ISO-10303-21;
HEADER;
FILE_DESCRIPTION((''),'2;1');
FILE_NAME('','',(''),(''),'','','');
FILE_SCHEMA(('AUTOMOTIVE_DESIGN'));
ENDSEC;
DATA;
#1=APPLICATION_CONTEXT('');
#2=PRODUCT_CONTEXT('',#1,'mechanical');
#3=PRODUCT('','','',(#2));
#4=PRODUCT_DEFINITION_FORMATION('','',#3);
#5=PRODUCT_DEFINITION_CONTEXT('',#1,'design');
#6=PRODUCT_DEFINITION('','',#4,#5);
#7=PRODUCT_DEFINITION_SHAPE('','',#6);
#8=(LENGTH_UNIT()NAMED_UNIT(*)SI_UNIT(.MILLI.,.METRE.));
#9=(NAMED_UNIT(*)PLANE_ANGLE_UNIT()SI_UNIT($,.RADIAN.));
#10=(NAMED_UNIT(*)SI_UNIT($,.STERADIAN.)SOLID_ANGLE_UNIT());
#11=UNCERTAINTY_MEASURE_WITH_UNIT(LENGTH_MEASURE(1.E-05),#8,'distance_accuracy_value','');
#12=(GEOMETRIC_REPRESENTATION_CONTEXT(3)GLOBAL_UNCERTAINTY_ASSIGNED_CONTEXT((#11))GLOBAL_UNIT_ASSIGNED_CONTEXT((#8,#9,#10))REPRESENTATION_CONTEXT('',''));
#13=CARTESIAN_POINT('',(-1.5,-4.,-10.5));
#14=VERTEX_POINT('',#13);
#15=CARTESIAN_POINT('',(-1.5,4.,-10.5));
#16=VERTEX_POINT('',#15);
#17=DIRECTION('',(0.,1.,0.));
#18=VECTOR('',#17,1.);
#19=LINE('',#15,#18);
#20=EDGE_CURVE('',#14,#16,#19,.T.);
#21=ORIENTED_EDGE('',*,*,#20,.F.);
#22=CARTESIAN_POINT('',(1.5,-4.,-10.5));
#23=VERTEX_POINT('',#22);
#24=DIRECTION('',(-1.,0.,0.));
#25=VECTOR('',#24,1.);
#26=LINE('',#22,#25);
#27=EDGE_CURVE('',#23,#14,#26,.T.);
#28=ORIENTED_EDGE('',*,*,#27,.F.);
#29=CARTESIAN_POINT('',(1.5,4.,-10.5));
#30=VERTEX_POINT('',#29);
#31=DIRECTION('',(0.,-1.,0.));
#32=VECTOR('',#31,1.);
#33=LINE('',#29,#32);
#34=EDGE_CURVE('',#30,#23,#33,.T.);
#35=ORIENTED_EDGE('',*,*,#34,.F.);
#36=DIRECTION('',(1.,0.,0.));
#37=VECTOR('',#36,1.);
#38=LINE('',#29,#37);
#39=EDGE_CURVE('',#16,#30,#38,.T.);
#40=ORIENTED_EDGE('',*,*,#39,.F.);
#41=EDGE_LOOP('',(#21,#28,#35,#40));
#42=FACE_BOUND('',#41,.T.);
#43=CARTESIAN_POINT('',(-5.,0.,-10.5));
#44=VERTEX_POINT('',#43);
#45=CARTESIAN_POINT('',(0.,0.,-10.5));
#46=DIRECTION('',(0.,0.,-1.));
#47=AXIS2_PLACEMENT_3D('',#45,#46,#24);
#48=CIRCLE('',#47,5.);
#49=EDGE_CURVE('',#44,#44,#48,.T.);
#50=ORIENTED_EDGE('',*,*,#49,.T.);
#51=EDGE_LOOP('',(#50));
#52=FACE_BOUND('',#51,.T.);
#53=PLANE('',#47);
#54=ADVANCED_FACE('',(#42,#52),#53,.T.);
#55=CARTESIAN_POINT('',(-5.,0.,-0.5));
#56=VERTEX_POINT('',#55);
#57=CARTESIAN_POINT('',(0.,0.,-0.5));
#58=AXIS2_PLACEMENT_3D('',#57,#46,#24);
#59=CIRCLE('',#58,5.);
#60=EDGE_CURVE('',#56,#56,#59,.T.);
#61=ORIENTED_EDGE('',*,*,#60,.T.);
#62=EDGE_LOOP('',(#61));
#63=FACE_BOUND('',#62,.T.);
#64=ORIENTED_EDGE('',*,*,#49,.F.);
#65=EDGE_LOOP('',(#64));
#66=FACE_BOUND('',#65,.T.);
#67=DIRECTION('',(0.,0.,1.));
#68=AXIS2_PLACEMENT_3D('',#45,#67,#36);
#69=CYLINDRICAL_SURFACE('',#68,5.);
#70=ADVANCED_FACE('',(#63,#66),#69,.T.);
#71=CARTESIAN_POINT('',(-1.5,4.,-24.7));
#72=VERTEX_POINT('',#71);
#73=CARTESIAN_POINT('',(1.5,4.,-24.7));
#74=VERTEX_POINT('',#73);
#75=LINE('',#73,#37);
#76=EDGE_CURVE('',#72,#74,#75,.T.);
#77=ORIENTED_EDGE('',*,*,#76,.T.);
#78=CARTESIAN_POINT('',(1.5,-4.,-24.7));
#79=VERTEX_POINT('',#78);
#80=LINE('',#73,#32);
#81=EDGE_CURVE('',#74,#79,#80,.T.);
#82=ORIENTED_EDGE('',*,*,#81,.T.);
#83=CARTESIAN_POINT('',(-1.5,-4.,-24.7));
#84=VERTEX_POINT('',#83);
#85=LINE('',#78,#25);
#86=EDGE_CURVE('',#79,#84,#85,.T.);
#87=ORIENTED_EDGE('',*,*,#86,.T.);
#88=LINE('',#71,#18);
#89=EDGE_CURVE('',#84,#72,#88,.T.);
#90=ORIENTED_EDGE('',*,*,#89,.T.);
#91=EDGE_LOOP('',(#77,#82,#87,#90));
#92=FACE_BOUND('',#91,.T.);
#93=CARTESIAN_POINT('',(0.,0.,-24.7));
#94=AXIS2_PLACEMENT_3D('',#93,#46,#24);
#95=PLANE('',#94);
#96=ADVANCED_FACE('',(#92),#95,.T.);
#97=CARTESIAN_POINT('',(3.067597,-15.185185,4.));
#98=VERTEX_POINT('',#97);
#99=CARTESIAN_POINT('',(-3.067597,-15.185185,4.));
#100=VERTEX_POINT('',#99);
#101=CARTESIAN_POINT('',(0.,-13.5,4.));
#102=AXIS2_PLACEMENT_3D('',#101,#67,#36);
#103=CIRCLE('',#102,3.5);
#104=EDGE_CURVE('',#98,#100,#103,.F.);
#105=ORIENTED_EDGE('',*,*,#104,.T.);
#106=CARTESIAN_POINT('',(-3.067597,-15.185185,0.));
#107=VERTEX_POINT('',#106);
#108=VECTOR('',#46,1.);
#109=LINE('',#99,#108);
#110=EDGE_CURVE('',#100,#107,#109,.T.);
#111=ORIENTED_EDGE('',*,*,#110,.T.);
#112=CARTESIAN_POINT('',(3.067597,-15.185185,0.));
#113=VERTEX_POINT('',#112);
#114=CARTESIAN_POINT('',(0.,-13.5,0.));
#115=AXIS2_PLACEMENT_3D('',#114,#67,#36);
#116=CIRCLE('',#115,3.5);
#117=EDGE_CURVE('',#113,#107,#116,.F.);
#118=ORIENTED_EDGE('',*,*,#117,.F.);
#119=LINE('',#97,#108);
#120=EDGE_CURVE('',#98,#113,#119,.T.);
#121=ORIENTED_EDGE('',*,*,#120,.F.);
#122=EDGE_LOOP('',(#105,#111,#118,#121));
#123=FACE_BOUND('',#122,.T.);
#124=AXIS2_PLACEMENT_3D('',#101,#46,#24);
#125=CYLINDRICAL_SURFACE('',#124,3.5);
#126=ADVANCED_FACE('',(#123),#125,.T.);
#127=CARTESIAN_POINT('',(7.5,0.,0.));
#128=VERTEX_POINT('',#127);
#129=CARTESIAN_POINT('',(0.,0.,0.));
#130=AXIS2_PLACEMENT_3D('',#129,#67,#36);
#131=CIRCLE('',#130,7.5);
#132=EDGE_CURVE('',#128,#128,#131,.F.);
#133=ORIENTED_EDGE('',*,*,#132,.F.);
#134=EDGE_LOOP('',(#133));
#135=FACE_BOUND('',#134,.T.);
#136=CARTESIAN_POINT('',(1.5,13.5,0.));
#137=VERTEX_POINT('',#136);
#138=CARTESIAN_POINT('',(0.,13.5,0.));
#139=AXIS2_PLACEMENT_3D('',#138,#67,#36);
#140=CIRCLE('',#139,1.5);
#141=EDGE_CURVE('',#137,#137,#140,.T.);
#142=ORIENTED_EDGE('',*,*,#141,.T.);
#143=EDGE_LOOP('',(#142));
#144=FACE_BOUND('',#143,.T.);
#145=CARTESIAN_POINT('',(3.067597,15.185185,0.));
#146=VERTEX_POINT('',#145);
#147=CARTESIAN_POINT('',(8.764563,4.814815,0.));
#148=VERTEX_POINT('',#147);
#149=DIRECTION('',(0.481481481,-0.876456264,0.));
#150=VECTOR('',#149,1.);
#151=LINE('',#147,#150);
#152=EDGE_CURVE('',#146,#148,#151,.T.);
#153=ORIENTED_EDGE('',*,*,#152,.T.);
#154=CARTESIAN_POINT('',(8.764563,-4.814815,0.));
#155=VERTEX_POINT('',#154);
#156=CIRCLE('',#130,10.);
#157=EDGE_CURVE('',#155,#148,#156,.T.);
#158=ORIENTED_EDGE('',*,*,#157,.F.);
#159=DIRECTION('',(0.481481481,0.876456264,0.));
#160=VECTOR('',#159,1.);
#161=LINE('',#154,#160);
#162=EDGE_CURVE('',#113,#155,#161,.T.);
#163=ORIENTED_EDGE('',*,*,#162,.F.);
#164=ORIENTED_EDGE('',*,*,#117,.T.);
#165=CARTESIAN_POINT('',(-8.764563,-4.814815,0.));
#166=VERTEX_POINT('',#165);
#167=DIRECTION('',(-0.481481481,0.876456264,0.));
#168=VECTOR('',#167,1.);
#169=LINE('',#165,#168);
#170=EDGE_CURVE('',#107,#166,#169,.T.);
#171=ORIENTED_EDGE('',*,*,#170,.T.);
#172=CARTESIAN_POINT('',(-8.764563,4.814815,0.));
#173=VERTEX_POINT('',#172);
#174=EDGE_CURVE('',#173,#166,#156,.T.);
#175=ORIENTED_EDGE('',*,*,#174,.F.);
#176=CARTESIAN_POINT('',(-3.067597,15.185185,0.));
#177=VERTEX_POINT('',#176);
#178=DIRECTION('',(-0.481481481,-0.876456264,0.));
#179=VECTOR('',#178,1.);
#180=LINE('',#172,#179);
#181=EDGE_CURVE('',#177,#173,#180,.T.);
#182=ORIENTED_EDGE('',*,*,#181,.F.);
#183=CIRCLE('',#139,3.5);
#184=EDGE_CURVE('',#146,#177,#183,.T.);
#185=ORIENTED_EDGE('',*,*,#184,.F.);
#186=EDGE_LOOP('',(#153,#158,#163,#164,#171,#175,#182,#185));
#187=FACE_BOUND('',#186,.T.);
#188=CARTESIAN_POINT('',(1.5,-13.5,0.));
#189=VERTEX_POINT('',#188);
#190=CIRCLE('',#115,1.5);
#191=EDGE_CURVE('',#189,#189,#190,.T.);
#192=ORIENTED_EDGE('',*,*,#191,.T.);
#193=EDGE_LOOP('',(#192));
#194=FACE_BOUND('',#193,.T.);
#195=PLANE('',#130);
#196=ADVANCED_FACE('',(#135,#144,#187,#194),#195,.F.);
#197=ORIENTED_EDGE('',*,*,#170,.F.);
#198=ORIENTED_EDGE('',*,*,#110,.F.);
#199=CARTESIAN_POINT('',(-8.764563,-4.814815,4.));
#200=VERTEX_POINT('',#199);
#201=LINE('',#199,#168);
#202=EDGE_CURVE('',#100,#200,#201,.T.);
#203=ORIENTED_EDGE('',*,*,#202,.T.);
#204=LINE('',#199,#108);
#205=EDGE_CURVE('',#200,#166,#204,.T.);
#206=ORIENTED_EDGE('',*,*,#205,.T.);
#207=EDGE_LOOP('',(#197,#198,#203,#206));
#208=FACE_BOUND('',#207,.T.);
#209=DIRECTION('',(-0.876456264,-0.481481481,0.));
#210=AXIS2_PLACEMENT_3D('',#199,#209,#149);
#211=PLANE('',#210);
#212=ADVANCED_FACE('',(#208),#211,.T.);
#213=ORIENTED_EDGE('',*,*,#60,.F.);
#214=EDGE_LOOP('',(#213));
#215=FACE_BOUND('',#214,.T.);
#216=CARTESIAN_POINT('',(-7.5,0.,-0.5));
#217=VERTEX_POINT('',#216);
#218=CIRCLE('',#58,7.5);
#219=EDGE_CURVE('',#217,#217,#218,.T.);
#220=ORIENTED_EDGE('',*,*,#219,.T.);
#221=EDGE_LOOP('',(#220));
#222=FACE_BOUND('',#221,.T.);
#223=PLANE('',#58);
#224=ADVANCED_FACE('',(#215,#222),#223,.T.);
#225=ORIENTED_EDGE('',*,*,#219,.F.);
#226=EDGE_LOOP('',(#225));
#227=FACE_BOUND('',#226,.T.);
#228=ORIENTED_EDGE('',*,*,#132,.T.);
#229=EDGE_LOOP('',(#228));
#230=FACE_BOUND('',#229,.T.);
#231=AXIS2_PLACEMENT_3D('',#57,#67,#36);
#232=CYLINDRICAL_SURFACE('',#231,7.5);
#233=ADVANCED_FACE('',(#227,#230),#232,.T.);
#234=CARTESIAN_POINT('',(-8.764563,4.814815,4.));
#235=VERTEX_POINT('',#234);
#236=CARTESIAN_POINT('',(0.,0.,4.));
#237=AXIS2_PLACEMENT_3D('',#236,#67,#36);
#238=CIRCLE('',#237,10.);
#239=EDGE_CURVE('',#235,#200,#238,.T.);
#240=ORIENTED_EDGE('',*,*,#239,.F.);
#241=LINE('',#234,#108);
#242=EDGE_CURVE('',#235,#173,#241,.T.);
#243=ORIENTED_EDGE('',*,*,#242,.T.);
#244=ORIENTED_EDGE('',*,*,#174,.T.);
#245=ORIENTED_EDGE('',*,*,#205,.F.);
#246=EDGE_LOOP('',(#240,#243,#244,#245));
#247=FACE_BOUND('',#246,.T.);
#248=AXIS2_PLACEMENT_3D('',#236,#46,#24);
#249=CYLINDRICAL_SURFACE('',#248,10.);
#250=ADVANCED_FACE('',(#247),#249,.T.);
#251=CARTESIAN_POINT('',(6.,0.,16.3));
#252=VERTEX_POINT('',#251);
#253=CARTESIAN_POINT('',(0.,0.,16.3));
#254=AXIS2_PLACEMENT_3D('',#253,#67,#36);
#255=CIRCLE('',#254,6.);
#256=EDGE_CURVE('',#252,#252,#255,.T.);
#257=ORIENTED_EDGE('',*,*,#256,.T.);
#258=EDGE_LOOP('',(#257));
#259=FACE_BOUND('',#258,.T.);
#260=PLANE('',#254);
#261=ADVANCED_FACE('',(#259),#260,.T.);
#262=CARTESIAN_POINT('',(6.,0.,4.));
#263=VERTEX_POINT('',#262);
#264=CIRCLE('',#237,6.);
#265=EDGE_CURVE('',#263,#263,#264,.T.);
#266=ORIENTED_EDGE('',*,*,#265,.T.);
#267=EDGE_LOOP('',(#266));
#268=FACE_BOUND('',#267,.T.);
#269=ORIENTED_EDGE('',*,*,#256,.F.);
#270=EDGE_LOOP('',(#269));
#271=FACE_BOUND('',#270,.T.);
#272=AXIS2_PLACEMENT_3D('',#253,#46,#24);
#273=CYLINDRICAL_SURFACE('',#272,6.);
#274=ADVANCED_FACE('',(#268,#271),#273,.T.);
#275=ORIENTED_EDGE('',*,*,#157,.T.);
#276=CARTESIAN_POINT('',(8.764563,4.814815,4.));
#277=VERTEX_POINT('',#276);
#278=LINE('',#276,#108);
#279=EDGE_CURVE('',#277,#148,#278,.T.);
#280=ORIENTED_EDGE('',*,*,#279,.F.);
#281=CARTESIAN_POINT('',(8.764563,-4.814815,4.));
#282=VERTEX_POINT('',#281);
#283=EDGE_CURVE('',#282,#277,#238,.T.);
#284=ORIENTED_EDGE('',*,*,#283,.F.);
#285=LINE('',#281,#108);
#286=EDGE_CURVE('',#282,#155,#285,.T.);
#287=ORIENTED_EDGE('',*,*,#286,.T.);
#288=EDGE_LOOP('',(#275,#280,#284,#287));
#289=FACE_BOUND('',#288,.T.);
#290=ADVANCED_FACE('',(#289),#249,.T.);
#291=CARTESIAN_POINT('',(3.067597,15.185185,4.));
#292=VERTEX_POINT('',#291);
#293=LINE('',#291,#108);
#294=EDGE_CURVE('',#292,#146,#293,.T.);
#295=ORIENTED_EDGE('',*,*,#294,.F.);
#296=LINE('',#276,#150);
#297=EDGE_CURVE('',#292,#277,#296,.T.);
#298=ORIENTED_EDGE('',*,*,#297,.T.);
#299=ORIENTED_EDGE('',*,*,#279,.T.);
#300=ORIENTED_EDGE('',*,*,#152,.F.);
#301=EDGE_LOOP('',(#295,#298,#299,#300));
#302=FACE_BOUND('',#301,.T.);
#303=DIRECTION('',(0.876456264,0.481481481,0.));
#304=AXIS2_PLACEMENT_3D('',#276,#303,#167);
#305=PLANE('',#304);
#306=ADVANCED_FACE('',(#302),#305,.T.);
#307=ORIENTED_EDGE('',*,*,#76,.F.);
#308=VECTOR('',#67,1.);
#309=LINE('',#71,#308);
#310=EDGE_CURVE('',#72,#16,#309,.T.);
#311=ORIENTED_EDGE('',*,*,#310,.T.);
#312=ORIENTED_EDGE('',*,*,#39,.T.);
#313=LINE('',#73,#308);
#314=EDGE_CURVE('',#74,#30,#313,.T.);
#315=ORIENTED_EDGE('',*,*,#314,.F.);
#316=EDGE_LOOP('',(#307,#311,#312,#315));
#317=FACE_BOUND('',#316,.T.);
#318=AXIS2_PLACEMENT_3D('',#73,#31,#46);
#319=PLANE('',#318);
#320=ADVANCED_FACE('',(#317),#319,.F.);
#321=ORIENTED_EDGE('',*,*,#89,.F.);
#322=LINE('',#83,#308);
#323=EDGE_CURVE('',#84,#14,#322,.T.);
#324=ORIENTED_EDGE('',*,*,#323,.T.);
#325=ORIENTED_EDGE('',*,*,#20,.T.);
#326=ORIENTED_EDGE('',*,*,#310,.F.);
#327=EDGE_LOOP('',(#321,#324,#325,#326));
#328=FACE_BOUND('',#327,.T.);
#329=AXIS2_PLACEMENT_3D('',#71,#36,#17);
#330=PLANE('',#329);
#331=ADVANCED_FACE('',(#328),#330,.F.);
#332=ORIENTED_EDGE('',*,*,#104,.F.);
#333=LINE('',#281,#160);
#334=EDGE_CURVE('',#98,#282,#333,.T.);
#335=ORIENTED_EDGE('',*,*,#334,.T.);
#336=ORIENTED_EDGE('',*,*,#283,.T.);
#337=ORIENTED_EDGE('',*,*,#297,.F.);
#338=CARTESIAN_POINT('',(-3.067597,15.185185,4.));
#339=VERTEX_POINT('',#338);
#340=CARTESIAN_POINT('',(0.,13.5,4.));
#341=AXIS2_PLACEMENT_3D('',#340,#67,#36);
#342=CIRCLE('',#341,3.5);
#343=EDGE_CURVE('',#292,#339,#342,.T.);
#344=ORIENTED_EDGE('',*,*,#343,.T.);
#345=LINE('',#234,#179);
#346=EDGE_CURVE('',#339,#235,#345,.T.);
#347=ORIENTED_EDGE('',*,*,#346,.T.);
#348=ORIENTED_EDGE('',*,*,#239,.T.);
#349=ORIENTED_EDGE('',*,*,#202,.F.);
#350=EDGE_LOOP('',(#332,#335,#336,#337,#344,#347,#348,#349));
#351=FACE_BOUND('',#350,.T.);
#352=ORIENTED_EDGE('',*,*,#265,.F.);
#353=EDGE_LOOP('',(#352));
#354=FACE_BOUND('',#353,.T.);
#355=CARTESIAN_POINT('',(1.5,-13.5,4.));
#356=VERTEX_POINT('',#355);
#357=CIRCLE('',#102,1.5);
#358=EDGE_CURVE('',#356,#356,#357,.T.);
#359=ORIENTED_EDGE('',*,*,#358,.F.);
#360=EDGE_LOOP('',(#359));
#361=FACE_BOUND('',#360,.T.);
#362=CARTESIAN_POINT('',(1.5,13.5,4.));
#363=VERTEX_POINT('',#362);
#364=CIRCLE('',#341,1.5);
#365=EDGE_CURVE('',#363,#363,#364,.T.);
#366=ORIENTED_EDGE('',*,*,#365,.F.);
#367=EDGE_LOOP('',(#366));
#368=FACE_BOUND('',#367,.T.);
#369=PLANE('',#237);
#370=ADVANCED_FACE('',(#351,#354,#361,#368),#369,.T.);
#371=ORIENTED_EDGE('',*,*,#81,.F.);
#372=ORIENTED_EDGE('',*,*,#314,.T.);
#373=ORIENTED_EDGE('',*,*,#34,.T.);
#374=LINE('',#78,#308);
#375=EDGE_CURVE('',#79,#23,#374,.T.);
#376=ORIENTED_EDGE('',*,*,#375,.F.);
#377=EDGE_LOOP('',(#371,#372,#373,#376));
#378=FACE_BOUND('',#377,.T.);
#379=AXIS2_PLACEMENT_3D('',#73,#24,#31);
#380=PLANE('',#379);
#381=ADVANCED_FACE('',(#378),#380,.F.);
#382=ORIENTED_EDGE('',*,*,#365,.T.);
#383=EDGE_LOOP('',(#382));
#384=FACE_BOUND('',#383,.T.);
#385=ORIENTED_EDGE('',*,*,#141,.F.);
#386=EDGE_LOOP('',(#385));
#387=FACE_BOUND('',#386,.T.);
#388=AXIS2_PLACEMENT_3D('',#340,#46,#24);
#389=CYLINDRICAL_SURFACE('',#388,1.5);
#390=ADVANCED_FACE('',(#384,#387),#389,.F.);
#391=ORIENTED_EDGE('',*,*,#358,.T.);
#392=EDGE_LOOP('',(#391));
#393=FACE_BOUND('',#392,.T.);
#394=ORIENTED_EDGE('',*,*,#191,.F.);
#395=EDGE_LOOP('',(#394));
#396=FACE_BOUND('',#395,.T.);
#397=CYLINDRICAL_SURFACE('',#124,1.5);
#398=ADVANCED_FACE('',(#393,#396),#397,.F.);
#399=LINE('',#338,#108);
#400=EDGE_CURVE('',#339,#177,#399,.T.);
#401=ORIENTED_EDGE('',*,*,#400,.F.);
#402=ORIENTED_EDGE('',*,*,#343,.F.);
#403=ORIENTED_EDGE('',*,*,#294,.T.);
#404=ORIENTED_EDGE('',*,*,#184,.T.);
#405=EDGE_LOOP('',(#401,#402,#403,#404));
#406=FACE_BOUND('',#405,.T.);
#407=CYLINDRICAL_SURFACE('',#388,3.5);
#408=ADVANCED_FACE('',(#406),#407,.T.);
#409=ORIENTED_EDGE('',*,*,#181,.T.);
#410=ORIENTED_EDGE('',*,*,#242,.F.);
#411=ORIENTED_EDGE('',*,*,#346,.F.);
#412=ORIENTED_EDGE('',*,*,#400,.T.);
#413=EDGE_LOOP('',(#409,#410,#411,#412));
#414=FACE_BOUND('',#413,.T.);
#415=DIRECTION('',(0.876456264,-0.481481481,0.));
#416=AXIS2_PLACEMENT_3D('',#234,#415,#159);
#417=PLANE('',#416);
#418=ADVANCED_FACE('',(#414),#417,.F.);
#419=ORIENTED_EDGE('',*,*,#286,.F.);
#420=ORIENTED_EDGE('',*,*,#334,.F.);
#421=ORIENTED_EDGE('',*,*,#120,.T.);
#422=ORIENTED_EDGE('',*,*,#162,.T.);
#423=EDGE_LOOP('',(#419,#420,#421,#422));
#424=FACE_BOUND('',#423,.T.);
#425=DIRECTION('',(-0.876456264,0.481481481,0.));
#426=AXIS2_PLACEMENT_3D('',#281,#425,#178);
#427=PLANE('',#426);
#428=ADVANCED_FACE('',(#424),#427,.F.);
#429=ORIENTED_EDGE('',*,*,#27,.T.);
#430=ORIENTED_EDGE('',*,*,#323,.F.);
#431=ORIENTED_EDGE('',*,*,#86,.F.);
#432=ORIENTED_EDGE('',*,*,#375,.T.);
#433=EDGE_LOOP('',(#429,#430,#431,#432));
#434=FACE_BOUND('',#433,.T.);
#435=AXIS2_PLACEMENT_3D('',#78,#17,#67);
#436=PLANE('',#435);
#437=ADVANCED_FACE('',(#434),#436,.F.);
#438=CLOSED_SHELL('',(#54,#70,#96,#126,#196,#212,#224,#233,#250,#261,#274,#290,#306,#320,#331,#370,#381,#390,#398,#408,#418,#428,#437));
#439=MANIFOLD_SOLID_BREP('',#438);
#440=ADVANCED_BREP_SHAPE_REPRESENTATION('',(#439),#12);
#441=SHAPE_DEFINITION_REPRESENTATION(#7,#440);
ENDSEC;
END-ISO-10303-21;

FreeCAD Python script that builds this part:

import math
import FreeCAD as App
import Part
import Sketcher
from FreeCAD import Vector

doc = App.newDocument("Part")
body = doc.addObject("PartDesign::Body", "Body")

# Sketch on XY plane
sketch1 = doc.addObject("Sketcher::SketchObject", "Sketch")
body.addObject(sketch1)
sketch1.AttachmentSupport = (doc.XY_Plane, [""])
sketch1.MapMode = "FlatFace"
sketch1.addGeometry(Part.ArcOfCircle(Part.Circle(Vector(0, -13.5, 0), Vector(0, 0, 1), 3.5), math.radians(-151), math.radians(-29)), False)
sketch1.addGeometry(Part.LineSegment(Vector(3.1, -15.2, 0), Vector(8.8, -4.8, 0)), False)
sketch1.addGeometry(Part.ArcOfCircle(Part.Circle(Vector(0, 0, 0), Vector(0, 0, 1), 10), math.radians(-29), math.radians(29)), False)
sketch1.addGeometry(Part.LineSegment(Vector(8.8, 4.8, 0), Vector(3.1, 15.2, 0)), False)
sketch1.addGeometry(Part.ArcOfCircle(Part.Circle(Vector(0, 13.5, 0), Vector(0, 0, 1), 3.5), math.radians(29), math.radians(151)), False)
sketch1.addGeometry(Part.LineSegment(Vector(-3.1, 15.2, 0), Vector(-8.8, 4.8, 0)), False)
sketch1.addGeometry(Part.ArcOfCircle(Part.Circle(Vector(0, 0, 0), Vector(0, 0, 1), 10), math.radians(151), math.radians(209)), False)
sketch1.addGeometry(Part.LineSegment(Vector(-8.8, -4.8, 0), Vector(-3.1, -15.2, 0)), False)
sketch1.addGeometry(Part.Circle(Vector(0, -13.5, 0), Vector(0, 0, 1), 1.5), False)
sketch1.addGeometry(Part.Circle(Vector(0, 13.5, 0), Vector(0, 0, 1), 1.5), False)
sketch1.addConstraint(Sketcher.Constraint("Tangent", 0, 2, 1, 1))
sketch1.addConstraint(Sketcher.Constraint("Tangent", 1, 2, 2, 1))
sketch1.addConstraint(Sketcher.Constraint("Tangent", 2, 2, 3, 1))
sketch1.addConstraint(Sketcher.Constraint("Tangent", 3, 2, 4, 1))
sketch1.addConstraint(Sketcher.Constraint("Tangent", 4, 2, 5, 1))
sketch1.addConstraint(Sketcher.Constraint("Tangent", 5, 2, 6, 1))
sketch1.addConstraint(Sketcher.Constraint("Tangent", 6, 2, 7, 1))
sketch1.addConstraint(Sketcher.Constraint("Tangent", 7, 2, 0, 1))
sketch1.addConstraint(Sketcher.Constraint("Coincident", 2, 3, -1, 1))
sketch1.addConstraint(Sketcher.Constraint("Coincident", 6, 3, -1, 1))
sketch1.addConstraint(Sketcher.Constraint("Coincident", 8, 3, 0, 3))
sketch1.addConstraint(Sketcher.Constraint("Coincident", 9, 3, 4, 3))
sketch1.addConstraint(Sketcher.Constraint("Equal", 0, 4))
sketch1.addConstraint(Sketcher.Constraint("Equal", 2, 6))
sketch1.addConstraint(Sketcher.Constraint("Equal", 8, 9))
sketch1.addConstraint(Sketcher.Constraint("Symmetric", 0, 3, 4, 3, -1, 1))
sketch1.addConstraint(Sketcher.Constraint("PointOnObject", 0, 3, -2))
sketch1.addConstraint(Sketcher.Constraint("Diameter", 8, 3.0))
sketch1.addConstraint(Sketcher.Constraint("Radius", 2, 10.0))
sketch1.addConstraint(Sketcher.Constraint("Radius", 0, 3.5))
sketch1.addConstraint(Sketcher.Constraint("DistanceY", 0, 3, 4, 3, 27.0))
pad1 = doc.addObject("PartDesign::Pad", "Pad")
body.addObject(pad1)
pad1.Profile = sketch1
pad1.Length = 4

# Sketch on XY plane
sketch2 = doc.addObject("Sketcher::SketchObject", "Sketch001")
body.addObject(sketch2)
sketch2.AttachmentSupport = (doc.XY_Plane, [""])
sketch2.MapMode = "FlatFace"
sketch2.AttachmentOffset = App.Placement(Vector(0, 0, 4), App.Rotation())
sketch2.addGeometry(Part.Circle(Vector(0, 0, 0), Vector(0, 0, 1), 6), False)
sketch2.addConstraint(Sketcher.Constraint("Coincident", 0, 3, -1, 1))
sketch2.addConstraint(Sketcher.Constraint("Diameter", 0, 12.0))
pad2 = doc.addObject("PartDesign::Pad", "Pad001")
body.addObject(pad2)
pad2.Profile = sketch2
pad2.Length = 12.3

# Sketch on XY plane
sketch3 = doc.addObject("Sketcher::SketchObject", "Sketch002")
body.addObject(sketch3)
sketch3.AttachmentSupport = (doc.XY_Plane, [""])
sketch3.MapMode = "FlatFace"
sketch3.addGeometry(Part.Circle(Vector(0, 0, 0), Vector(0, 0, 1), 8), False)
sketch3.addConstraint(Sketcher.Constraint("Coincident", 0, 3, -1, 1))
sketch3.addConstraint(Sketcher.Constraint("Diameter", 0, 15.0))
pad3 = doc.addObject("PartDesign::Pad", "Pad002")
body.addObject(pad3)
pad3.Profile = sketch3
pad3.Length = 0.5
pad3.Reversed = True

# Sketch on XY plane
sketch4 = doc.addObject("Sketcher::SketchObject", "Sketch003")
body.addObject(sketch4)
sketch4.AttachmentSupport = (doc.XY_Plane, [""])
sketch4.MapMode = "FlatFace"
sketch4.AttachmentOffset = App.Placement(Vector(0, 0, -0.5), App.Rotation())
sketch4.addGeometry(Part.LineSegment(Vector(1.5, 4, 0), Vector(1.5, -4, 0)), False)
sketch4.addGeometry(Part.LineSegment(Vector(1.5, -4, 0), Vector(-1.5, -4, 0)), False)
sketch4.addGeometry(Part.LineSegment(Vector(-1.5, -4, 0), Vector(-1.5, 4, 0)), False)
sketch4.addGeometry(Part.LineSegment(Vector(-1.5, 4, 0), Vector(1.5, 4, 0)), False)
sketch4.addConstraint(Sketcher.Constraint("Coincident", 0, 2, 1, 1))
sketch4.addConstraint(Sketcher.Constraint("Coincident", 1, 2, 2, 1))
sketch4.addConstraint(Sketcher.Constraint("Coincident", 2, 2, 3, 1))
sketch4.addConstraint(Sketcher.Constraint("Coincident", 3, 2, 0, 1))
sketch4.addConstraint(Sketcher.Constraint("Vertical", 0))
sketch4.addConstraint(Sketcher.Constraint("Horizontal", 1))
sketch4.addConstraint(Sketcher.Constraint("Vertical", 2))
sketch4.addConstraint(Sketcher.Constraint("Horizontal", 3))
sketch4.addConstraint(Sketcher.Constraint("Symmetric", 0, 2, 2, 2, -1, 1))
sketch4.addConstraint(Sketcher.Constraint("DistanceX", 1, 2, 1, 1, 3.0))
sketch4.addConstraint(Sketcher.Constraint("DistanceY", 0, 2, 0, 1, 8.0))
pad4 = doc.addObject("PartDesign::Pad", "Pad003")
body.addObject(pad4)
pad4.Profile = sketch4
pad4.Length = 24.2
pad4.Reversed = True

# Sketch on XY plane
sketch5 = doc.addObject("Sketcher::SketchObject", "Sketch004")
body.addObject(sketch5)
sketch5.AttachmentSupport = (doc.XY_Plane, [""])
sketch5.MapMode = "FlatFace"
sketch5.AttachmentOffset = App.Placement(Vector(0, 0, -0.5), App.Rotation())
sketch5.addGeometry(Part.Circle(Vector(0, 0, 0), Vector(0, 0, 1), 5), False)
sketch5.addConstraint(Sketcher.Constraint("Coincident", 0, 3, -1, 1))
sketch5.addConstraint(Sketcher.Constraint("Diameter", 0, 10.0))
pad5 = doc.addObject("PartDesign::Pad", "Pad004")
body.addObject(pad5)
pad5.Profile = sketch5
pad5.Length = 10
pad5.Reversed = True

doc.recompute()
